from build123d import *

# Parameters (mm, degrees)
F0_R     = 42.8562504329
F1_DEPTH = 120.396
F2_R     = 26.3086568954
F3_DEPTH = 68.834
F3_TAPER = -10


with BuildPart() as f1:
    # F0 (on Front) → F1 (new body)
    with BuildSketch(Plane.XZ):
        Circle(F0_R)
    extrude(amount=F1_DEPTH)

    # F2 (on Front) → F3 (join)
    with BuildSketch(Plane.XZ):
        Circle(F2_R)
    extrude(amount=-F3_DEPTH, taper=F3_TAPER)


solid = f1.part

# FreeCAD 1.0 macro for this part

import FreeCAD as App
import Part
import Sketcher
from FreeCAD import Vector
Q = App.Units.Quantity

doc = App.newDocument("Part")
body = doc.addObject("PartDesign::Body", "Body")

# Sketch on XZ plane
sketch1 = body.newObject("Sketcher::SketchObject", "Sketch")
sketch1.AttachmentSupport = (doc.getObject("XZ_Plane"), [""])
sketch1.MapMode = "FlatFace"
sketch1.addGeometry(Part.Circle(Vector(0, 0, 0), Vector(0, 0, 1), 43), False)
sketch1.addConstraint(Sketcher.Constraint("Coincident", 0, 3, -1, 1))
sketch1.addConstraint(Sketcher.Constraint("Diameter", 0, 85.712501))
pad1 = body.newObject("PartDesign::Pad", "Pad")
pad1.Profile = sketch1
pad1.Length = Q("4.74 in")

# Sketch on XZ plane
sketch2 = body.newObject("Sketcher::SketchObject", "Sketch001")
sketch2.AttachmentSupport = (doc.getObject("XZ_Plane"), [""])
sketch2.MapMode = "FlatFace"
sketch2.addGeometry(Part.Circle(Vector(0, 0, 0), Vector(0, 0, 1), 26), False)
sketch2.addConstraint(Sketcher.Constraint("Coincident", 0, 3, -1, 1))
sketch2.addConstraint(Sketcher.Constraint("Diameter", 0, 52.617314))
pad2 = body.newObject("PartDesign::Pad", "Pad001")
pad2.Profile = sketch2
pad2.Length = Q("2.71 in")
pad2.Reversed = True
pad2.TaperAngle = 10

doc.recompute()
